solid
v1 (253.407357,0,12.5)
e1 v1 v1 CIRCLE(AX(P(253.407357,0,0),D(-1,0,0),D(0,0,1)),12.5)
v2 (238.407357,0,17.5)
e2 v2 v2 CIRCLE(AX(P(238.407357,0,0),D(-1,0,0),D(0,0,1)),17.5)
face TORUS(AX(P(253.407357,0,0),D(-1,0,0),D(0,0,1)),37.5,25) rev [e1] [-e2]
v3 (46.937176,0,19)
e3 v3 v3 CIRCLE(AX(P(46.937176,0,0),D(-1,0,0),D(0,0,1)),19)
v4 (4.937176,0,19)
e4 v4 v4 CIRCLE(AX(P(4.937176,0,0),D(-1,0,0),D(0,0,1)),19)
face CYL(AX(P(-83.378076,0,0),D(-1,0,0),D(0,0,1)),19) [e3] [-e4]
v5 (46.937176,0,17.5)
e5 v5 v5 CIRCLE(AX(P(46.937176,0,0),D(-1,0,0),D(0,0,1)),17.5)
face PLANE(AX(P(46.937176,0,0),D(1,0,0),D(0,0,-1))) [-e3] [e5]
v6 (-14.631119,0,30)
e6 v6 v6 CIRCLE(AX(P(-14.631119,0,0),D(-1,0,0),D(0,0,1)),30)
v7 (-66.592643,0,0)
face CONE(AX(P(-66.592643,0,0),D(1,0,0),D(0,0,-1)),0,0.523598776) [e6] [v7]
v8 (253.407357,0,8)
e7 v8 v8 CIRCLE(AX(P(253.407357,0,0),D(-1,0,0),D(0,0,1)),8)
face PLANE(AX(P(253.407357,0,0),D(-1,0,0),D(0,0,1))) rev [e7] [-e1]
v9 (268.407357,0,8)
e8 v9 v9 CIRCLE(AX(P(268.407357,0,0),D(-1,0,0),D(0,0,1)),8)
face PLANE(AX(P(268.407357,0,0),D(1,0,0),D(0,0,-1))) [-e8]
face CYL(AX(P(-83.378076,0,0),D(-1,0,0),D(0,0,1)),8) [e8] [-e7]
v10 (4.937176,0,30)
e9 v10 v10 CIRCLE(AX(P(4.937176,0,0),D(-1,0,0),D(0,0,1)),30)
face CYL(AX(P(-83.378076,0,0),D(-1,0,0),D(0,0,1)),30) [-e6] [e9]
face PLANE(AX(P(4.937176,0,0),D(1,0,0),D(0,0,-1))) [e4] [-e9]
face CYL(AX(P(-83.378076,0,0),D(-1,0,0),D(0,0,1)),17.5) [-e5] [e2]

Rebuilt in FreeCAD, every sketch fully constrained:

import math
import FreeCAD as App
import Part
import Sketcher

V = App.Vector
Q = App.Units.Quantity

doc = App.newDocument("Part")
params = doc.addObject("Spreadsheet::Sheet", "Params")
for row, (alias, value) in enumerate([
    ("sketch1_radius", "25 mm"),
    ("sketch1_width", "335 mm"),
    ("sketch1_width2", "15 mm"),
    ("sketch1_width3", "42 mm"),
    ("sketch1_height", "8 mm"),
    ("revolution_angle", "360 deg"),
], start=1):
    params.set(f"A{row}", alias)
    params.set(f"B{row}", "=" + value)
    params.setAlias(f"B{row}", alias)

body = doc.addObject("PartDesign::Body", "Body")

# Sketch on XY plane
sketch1 = body.newObject("Sketcher::SketchObject", "Sketch")
sketch1.AttachmentSupport = (doc.getObject("XY_Plane"), [""])
sketch1.MapMode = "FlatFace"
sketch1.addGeometry([
    Part.LineSegment(V(-14.6, 30, 0), V(-66.6, 0, 0)),  # 0
    Part.LineSegment(V(-66.6, 0, 0), V(268.4, 0, 0)),  # 1
    Part.LineSegment(V(268.4, 0, 0), V(268.4, 8, 0)),  # 2
    Part.LineSegment(V(268.4, 8, 0), V(253.4, 8, 0)),  # 3
    Part.LineSegment(V(253.4, 8, 0), V(253.4, 12.5, 0)),  # 4
    Part.ArcOfCircle(Part.Circle(V(253.4, 37.5, 0), V(0, 0, 1), 25), math.radians(-127), math.radians(-90)),  # 5
    Part.LineSegment(V(238.4, 17.5, 0), V(46.9, 17.5, 0)),  # 6
    Part.LineSegment(V(46.9, 17.5, 0), V(46.9, 19, 0)),  # 7
    Part.LineSegment(V(46.9, 19, 0), V(4.9, 19, 0)),  # 8
    Part.LineSegment(V(4.9, 19, 0), V(4.9, 30, 0)),  # 9
    Part.LineSegment(V(4.9, 30, 0), V(-14.6, 30, 0)),  # 10
], False)
sketch1.addConstraint([
    Sketcher.Constraint("Coincident", 0, 2, 1, 1),
    Sketcher.Constraint("Coincident", 1, 2, 2, 1),
    Sketcher.Constraint("Coincident", 2, 2, 3, 1),
    Sketcher.Constraint("Coincident", 3, 2, 4, 1),
    Sketcher.Constraint("Coincident", 4, 2, 5, 2),
    Sketcher.Constraint("Coincident", 5, 1, 6, 1),
    Sketcher.Constraint("Coincident", 6, 2, 7, 1),
    Sketcher.Constraint("Coincident", 7, 2, 8, 1),
    Sketcher.Constraint("Coincident", 8, 2, 9, 1),
    Sketcher.Constraint("Coincident", 9, 2, 10, 1),
    Sketcher.Constraint("Coincident", 10, 2, 0, 1),
    Sketcher.Constraint("Horizontal", 1),
    Sketcher.Constraint("Vertical", 2),
    Sketcher.Constraint("Horizontal", 3),
    Sketcher.Constraint("Vertical", 4),
    Sketcher.Constraint("Horizontal", 6),
    Sketcher.Constraint("Vertical", 7),
    Sketcher.Constraint("Horizontal", 8),
    Sketcher.Constraint("Vertical", 9),
    Sketcher.Constraint("Horizontal", 10),
    Sketcher.Constraint("PointOnObject", 0, 2, -1),
    Sketcher.Constraint("Vertical", 5, 3, 3, 2),
    Sketcher.Constraint("Radius", 5, Q("25 mm")),
    Sketcher.Constraint("DistanceX", 1, 1, 1, 2, Q("335 mm")),
    Sketcher.Constraint("DistanceX", 3, 2, 3, 1, Q("15 mm")),
    Sketcher.Constraint("DistanceX", 8, 2, 8, 1, Q("42 mm")),
    Sketcher.Constraint("DistanceY", 2, 1, 2, 2, Q("8 mm")),
    Sketcher.Constraint("DistanceY", 9, 1, 9, 2, Q("11 mm")),
    Sketcher.Constraint("Angle", 0, Q("-150 deg")),
    Sketcher.Constraint("Distance", 0, Q("60 mm")),
    Sketcher.Constraint("DistanceY", 4, 1, 4, 2, Q("4.5 mm")),
    Sketcher.Constraint("DistanceY", 7, 1, 7, 2, Q("1.5 mm")),
    Sketcher.Constraint("DistanceX", 6, 2, 6, 1, Q("191.47018 mm")),
    Sketcher.Constraint("DistanceX", 10, 2, -1, 1, Q("14.631119 mm")),
])
sketch1.setExpression("Constraints[22]", "Params.sketch1_radius")
sketch1.setExpression("Constraints[23]", "Params.sketch1_width")
sketch1.setExpression("Constraints[24]", "Params.sketch1_width2")
sketch1.setExpression("Constraints[25]", "Params.sketch1_width3")
sketch1.setExpression("Constraints[26]", "Params.sketch1_height")
revolution = body.newObject("PartDesign::Revolution", "Revolution")
revolution.Profile = sketch1
revolution.ReferenceAxis = (sketch1, ["H_Axis"])
revolution.setExpression("Angle", "Params.revolution_angle")

doc.recompute()
